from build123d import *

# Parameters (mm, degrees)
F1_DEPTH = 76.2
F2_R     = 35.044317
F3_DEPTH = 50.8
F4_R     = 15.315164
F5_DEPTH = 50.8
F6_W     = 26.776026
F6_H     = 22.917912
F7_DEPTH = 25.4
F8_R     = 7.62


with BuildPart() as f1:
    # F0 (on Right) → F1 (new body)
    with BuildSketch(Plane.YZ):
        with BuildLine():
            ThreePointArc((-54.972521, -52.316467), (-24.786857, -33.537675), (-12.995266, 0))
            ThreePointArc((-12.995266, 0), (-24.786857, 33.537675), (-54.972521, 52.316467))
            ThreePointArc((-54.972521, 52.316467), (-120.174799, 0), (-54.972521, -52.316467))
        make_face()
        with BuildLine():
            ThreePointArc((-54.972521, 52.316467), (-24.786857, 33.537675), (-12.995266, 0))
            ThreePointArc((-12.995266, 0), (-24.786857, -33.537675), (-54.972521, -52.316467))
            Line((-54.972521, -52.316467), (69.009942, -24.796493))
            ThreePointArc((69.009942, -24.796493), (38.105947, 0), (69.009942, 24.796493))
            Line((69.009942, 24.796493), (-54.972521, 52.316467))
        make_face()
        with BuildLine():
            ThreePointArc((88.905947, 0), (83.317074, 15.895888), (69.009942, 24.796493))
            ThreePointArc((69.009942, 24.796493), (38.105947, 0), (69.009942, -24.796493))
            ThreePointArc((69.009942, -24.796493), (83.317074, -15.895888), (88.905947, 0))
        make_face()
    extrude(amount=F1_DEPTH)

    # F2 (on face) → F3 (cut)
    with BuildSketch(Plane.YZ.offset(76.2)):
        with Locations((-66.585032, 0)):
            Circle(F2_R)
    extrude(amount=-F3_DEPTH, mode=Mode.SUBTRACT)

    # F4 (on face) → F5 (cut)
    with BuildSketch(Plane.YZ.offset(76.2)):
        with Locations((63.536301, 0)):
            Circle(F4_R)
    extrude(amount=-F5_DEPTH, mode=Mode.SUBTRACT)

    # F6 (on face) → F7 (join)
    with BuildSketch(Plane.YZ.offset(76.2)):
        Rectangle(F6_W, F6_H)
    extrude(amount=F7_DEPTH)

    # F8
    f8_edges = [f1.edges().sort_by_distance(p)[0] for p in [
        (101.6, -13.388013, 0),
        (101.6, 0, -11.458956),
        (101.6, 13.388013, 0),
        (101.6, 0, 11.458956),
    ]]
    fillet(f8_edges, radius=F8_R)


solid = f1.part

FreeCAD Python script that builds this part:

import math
import FreeCAD as App
import Part
import Sketcher
Q = App.Units.Quantity


def edges_at(feature, points):
    """Names of the edges that pass closest to the given points."""
    edges = feature.Shape.Edges
    near = lambda p: min(range(len(edges)), key=lambda i: edges[i].distToShape(Part.Vertex(*p))[0])
    return sorted({f"Edge{near(p) + 1}" for p in points})

doc = App.newDocument("Part")
params = doc.addObject("Spreadsheet::Sheet", "Params")
for row, (alias, value) in enumerate([
    ("sketch1_radius", "1 in"),
    ("sketch1_length", "5 in"),
    ("pad1_length", "3 in"),
    ("pocket1_length", "2 in"),
    ("pocket2_length", "2 in"),
    ("pad2_length", "1 in"),
    ("fillet_radius", "0.3 in"),
], start=1):
    params.set(f"A{row}", alias)
    params.set(f"B{row}", "=" + value)
    params.setAlias(f"B{row}", alias)

body = doc.addObject("PartDesign::Body", "Body")

# Sketch on YZ plane
sketch1 = body.newObject("Sketcher::SketchObject", "Sketch")
sketch1.AttachmentSupport = (doc.getObject("YZ_Plane"), [""])
sketch1.MapMode = "FlatFace"
sketch1.addGeometry([
    Part.ArcOfCircle(Part.Circle(App.Vector(-66.585032, 0, 0), App.Vector(0, 0, 1), 53.589767), math.radians(77.485147), math.radians(282.514853)),  # 0
    Part.LineSegment(App.Vector(-54.972521, -52.316467, 0), App.Vector(69.009942, -24.796493, 0)),  # 1
    Part.ArcOfCircle(Part.Circle(App.Vector(63.505946, 0, 0), App.Vector(0, 0, 1), 25.400001), math.radians(-77.485145), math.radians(0)),  # 2
    Part.ArcOfCircle(Part.Circle(App.Vector(63.505946, 0, 0), App.Vector(0, 0, 1), 25.400001), math.radians(0), math.radians(77.485145)),  # 3
    Part.LineSegment(App.Vector(69.009942, 24.796493, 0), App.Vector(-54.972521, 52.316467, 0)),  # 4
], False)
sketch1.addConstraint([
    Sketcher.Constraint("Tangent", 0, 2, 1, 1),
    Sketcher.Constraint("Tangent", 1, 2, 2, 1),
    Sketcher.Constraint("Tangent", 2, 2, 3, 1),
    Sketcher.Constraint("Tangent", 3, 2, 4, 1),
    Sketcher.Constraint("Tangent", 4, 2, 0, 1),
    Sketcher.Constraint("Equal", 2, 3),
    Sketcher.Constraint("Symmetric", 1, 2, 3, 2, -1),
    Sketcher.Constraint("PointOnObject", 2, 2, -1),
    Sketcher.Constraint("Radius", 2, Q("1 in")),
    Sketcher.Constraint("Distance", 1, Q("5 in")),
    Sketcher.Constraint("Radius", 0, Q("53.589767 mm")),
    Sketcher.Constraint("DistanceX", 0, 3, -1, 1, Q("66.585032 mm")),
])
sketch1.setExpression("Constraints[8]", "Params.sketch1_radius")
sketch1.setExpression("Constraints[9]", "Params.sketch1_length")
pad1 = body.newObject("PartDesign::Pad", "Pad")
pad1.Profile = sketch1
pad1.setExpression("Length", "Params.pad1_length")

# Sketch on YZ plane
sketch2 = body.newObject("Sketcher::SketchObject", "Sketch001")
sketch2.AttachmentSupport = (doc.getObject("YZ_Plane"), [""])
sketch2.MapMode = "FlatFace"
sketch2.AttachmentOffset = App.Placement(App.Vector(0, 0, 3 * 25.4), App.Rotation())
sketch2.addGeometry(Part.Circle(App.Vector(-66.585032, 0, 0), App.Vector(0, 0, 1), 35.044317), False)
sketch2.addConstraint([
    Sketcher.Constraint("PointOnObject", 0, 3, -1),
    Sketcher.Constraint("Diameter", 0, Q("70.088634 mm")),
    Sketcher.Constraint("DistanceX", 0, 3, -1, 1, Q("66.585032 mm")),
])
pocket1 = body.newObject("PartDesign::Pocket", "Pocket")
pocket1.Profile = sketch2
pocket1.setExpression("Length", "Params.pocket1_length")

# Sketch on YZ plane
sketch3 = body.newObject("Sketcher::SketchObject", "Sketch002")
sketch3.AttachmentSupport = (doc.getObject("YZ_Plane"), [""])
sketch3.MapMode = "FlatFace"
sketch3.AttachmentOffset = App.Placement(App.Vector(0, 0, 3 * 25.4), App.Rotation())
sketch3.addGeometry(Part.Circle(App.Vector(63.536301, 0, 0), App.Vector(0, 0, 1), 15.315164), False)
sketch3.addConstraint([
    Sketcher.Constraint("PointOnObject", 0, 3, -1),
    Sketcher.Constraint("Diameter", 0, Q("30.630328 mm")),
    Sketcher.Constraint("DistanceX", -1, 1, 0, 3, Q("63.536301 mm")),
])
pocket2 = body.newObject("PartDesign::Pocket", "Pocket001")
pocket2.Profile = sketch3
pocket2.setExpression("Length", "Params.pocket2_length")

# Sketch on YZ plane
sketch4 = body.newObject("Sketcher::SketchObject", "Sketch003")
sketch4.AttachmentSupport = (doc.getObject("YZ_Plane"), [""])
sketch4.MapMode = "FlatFace"
sketch4.AttachmentOffset = App.Placement(App.Vector(0, 0, 3 * 25.4), App.Rotation())
sketch4.addGeometry([
    Part.LineSegment(App.Vector(-13.388013, 11.458956, 0), App.Vector(-13.388013, -11.458956, 0)),
    Part.LineSegment(App.Vector(-13.388013, -11.458956, 0), App.Vector(13.388013, -11.458956, 0)),
    Part.LineSegment(App.Vector(13.388013, -11.458956, 0), App.Vector(13.388013, 11.458956, 0)),
    Part.LineSegment(App.Vector(13.388013, 11.458956, 0), App.Vector(-13.388013, 11.458956, 0)),
], False)
sketch4.addConstraint([
    Sketcher.Constraint("Coincident", 0, 2, 1, 1),
    Sketcher.Constraint("Coincident", 1, 2, 2, 1),
    Sketcher.Constraint("Coincident", 2, 2, 3, 1),
    Sketcher.Constraint("Coincident", 3, 2, 0, 1),
    Sketcher.Constraint("Vertical", 0),
    Sketcher.Constraint("Horizontal", 1),
    Sketcher.Constraint("Vertical", 2),
    Sketcher.Constraint("Horizontal", 3),
    Sketcher.Constraint("Symmetric", 0, 2, 2, 2, -1, 1),
    Sketcher.Constraint("DistanceX", 1, 1, 1, 2, Q("26.776026 mm")),
    Sketcher.Constraint("DistanceY", 0, 2, 0, 1, Q("22.917912 mm")),
])
pad2 = body.newObject("PartDesign::Pad", "Pad001")
pad2.Profile = sketch4
pad2.setExpression("Length", "Params.pad2_length")
doc.recompute()

fillet = body.newObject("PartDesign::Fillet", "Fillet")
fillet.Base = (pad2, edges_at(pad2, [
    (101.6, -13.388, 0),
    (101.6, 0, -11.459),
    (101.6, 13.388, 0),
    (101.6, 0, 11.459),
]))
fillet.setExpression("Radius", "Params.fillet_radius")

doc.recompute()
